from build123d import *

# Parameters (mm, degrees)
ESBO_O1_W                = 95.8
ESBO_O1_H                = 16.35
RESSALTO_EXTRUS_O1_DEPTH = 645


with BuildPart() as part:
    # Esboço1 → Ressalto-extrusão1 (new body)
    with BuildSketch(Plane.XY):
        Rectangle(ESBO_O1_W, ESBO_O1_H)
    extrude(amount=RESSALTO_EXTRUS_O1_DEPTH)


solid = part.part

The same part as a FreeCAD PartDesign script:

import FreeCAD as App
import Part
import Sketcher
Q = App.Units.Quantity

doc = App.newDocument("Part")
params = doc.addObject("Spreadsheet::Sheet", "Params")
for row, (alias, value) in enumerate([
    ("sketch1_width", "95.8 mm"),
    ("sketch1_height", "16.35 mm"),
    ("pad1_length", "645 mm"),
], start=1):
    params.set(f"A{row}", alias)
    params.set(f"B{row}", "=" + value)
    params.setAlias(f"B{row}", alias)

body = doc.addObject("PartDesign::Body", "Body")

# Sketch on XY plane
sketch1 = body.newObject("Sketcher::SketchObject", "Sketch")
sketch1.AttachmentSupport = (doc.getObject("XY_Plane"), [""])
sketch1.MapMode = "FlatFace"
sketch1.addGeometry([
    Part.LineSegment(App.Vector(-48, 8, 0), App.Vector(-48, -8, 0)),
    Part.LineSegment(App.Vector(-48, -8, 0), App.Vector(48, -8, 0)),
    Part.LineSegment(App.Vector(48, -8, 0), App.Vector(48, 8, 0)),
    Part.LineSegment(App.Vector(48, 8, 0), App.Vector(-48, 8, 0)),
], False)
sketch1.addConstraint([
    Sketcher.Constraint("Coincident", 0, 2, 1, 1),
    Sketcher.Constraint("Coincident", 1, 2, 2, 1),
    Sketcher.Constraint("Coincident", 2, 2, 3, 1),
    Sketcher.Constraint("Coincident", 3, 2, 0, 1),
    Sketcher.Constraint("Vertical", 0),
    Sketcher.Constraint("Horizontal", 1),
    Sketcher.Constraint("Vertical", 2),
    Sketcher.Constraint("Horizontal", 3),
    Sketcher.Constraint("Symmetric", 0, 2, 2, 2, -1, 1),
    Sketcher.Constraint("DistanceX", 1, 1, 1, 2, Q("95.8 mm")),
    Sketcher.Constraint("DistanceY", 0, 2, 0, 1, Q("16.35 mm")),
])
sketch1.setExpression("Constraints[9]", "Params.sketch1_width")
sketch1.setExpression("Constraints[10]", "Params.sketch1_height")
pad1 = body.newObject("PartDesign::Pad", "Pad")
pad1.Profile = sketch1
pad1.setExpression("Length", "Params.pad1_length")

doc.recompute()
